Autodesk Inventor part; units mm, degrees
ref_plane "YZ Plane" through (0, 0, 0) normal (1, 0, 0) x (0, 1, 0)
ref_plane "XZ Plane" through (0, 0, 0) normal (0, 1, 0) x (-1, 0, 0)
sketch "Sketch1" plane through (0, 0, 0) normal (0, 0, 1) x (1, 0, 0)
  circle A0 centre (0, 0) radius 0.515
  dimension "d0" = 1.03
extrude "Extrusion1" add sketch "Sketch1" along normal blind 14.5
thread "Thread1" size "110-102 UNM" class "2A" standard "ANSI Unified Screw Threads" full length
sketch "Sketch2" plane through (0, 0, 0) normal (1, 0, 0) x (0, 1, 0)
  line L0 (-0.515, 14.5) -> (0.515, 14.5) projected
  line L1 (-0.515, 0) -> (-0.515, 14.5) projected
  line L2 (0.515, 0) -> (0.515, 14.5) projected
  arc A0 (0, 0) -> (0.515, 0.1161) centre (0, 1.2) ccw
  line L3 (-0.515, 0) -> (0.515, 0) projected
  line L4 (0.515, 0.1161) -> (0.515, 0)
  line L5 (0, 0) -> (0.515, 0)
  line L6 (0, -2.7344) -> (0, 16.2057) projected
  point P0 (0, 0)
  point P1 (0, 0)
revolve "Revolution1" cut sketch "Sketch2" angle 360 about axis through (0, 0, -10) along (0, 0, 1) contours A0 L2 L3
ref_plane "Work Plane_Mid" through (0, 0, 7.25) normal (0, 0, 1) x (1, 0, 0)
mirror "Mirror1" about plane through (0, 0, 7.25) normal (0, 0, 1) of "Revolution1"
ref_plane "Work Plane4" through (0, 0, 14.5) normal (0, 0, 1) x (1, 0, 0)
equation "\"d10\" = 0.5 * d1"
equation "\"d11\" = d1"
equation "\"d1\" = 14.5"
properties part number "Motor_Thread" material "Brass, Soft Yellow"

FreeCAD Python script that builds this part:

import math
import FreeCAD as App
import Part
import Sketcher

doc = App.newDocument("Part")
body = doc.addObject("PartDesign::Body", "Body")

sketch1 = doc.addObject("Sketcher::SketchObject", "Sketch")
body.addObject(sketch1)
sketch1.AttachmentSupport = (doc.XY_Plane, [""])
sketch1.MapMode = "FlatFace"
sketch1.addGeometry(Part.Circle(App.Vector(0, 0, 0), App.Vector(0, 0, 1), 0.5), False)
sketch1.addConstraint([
    Sketcher.Constraint("Coincident", 0, 3, -1, 1),
    Sketcher.Constraint("Diameter", 0, 1.03),
])
pad1 = doc.addObject("PartDesign::Pad", "Pad")
body.addObject(pad1)
pad1.Profile = sketch1
pad1.Length = 14.5

sketch2 = doc.addObject("Sketcher::SketchObject", "Sketch001")
body.addObject(sketch2)
sketch2.AttachmentSupport = (doc.YZ_Plane, [""])
sketch2.MapMode = "FlatFace"
sketch2.addGeometry([
    Part.ArcOfCircle(Part.Circle(App.Vector(0, 1.2, 0), App.Vector(0, 0, 1), 1.2), math.radians(-90), math.radians(-65)),
    Part.LineSegment(App.Vector(0, 0, 0), App.Vector(0.52, 0, 0)),
    Part.LineSegment(App.Vector(0.52, 0, 0), App.Vector(0.52, 0.12, 0)),
], False)
sketch2.addConstraint([
    Sketcher.Constraint("Tangent", 0, 1, 1, 1),
    Sketcher.Constraint("Coincident", 1, 2, 2, 1),
    Sketcher.Constraint("Coincident", 2, 2, 0, 2),
    Sketcher.Constraint("Horizontal", 1),
    Sketcher.Constraint("Vertical", 2),
    Sketcher.Constraint("Coincident", 0, 1, -1, 1),
    Sketcher.Constraint("Radius", 0, 1.2),
    Sketcher.Constraint("DistanceX", 1, 1, 1, 2, 0.515),
])
groove = doc.addObject("PartDesign::Groove", "Groove")
body.addObject(groove)
groove.Profile = sketch2
groove.ReferenceAxis = (sketch2, ["V_Axis"])
groove.Angle = 360
doc.recompute()

datumplane = doc.addObject("PartDesign::Plane", "DatumPlane")
body.addObject(datumplane)
datumplane.AttachmentSupport = (doc.XY_Plane, [""])
datumplane.MapMode = "FlatFace"
datumplane.AttachmentOffset = App.Placement(App.Vector(0, 0, 7.25), App.Rotation())
mirrored = doc.addObject("PartDesign::Mirrored", "Mirrored")
body.addObject(mirrored)
mirrored.Originals = [groove]
mirrored.MirrorPlane = (datumplane, [""])
body.Tip = mirrored

doc.recompute()
